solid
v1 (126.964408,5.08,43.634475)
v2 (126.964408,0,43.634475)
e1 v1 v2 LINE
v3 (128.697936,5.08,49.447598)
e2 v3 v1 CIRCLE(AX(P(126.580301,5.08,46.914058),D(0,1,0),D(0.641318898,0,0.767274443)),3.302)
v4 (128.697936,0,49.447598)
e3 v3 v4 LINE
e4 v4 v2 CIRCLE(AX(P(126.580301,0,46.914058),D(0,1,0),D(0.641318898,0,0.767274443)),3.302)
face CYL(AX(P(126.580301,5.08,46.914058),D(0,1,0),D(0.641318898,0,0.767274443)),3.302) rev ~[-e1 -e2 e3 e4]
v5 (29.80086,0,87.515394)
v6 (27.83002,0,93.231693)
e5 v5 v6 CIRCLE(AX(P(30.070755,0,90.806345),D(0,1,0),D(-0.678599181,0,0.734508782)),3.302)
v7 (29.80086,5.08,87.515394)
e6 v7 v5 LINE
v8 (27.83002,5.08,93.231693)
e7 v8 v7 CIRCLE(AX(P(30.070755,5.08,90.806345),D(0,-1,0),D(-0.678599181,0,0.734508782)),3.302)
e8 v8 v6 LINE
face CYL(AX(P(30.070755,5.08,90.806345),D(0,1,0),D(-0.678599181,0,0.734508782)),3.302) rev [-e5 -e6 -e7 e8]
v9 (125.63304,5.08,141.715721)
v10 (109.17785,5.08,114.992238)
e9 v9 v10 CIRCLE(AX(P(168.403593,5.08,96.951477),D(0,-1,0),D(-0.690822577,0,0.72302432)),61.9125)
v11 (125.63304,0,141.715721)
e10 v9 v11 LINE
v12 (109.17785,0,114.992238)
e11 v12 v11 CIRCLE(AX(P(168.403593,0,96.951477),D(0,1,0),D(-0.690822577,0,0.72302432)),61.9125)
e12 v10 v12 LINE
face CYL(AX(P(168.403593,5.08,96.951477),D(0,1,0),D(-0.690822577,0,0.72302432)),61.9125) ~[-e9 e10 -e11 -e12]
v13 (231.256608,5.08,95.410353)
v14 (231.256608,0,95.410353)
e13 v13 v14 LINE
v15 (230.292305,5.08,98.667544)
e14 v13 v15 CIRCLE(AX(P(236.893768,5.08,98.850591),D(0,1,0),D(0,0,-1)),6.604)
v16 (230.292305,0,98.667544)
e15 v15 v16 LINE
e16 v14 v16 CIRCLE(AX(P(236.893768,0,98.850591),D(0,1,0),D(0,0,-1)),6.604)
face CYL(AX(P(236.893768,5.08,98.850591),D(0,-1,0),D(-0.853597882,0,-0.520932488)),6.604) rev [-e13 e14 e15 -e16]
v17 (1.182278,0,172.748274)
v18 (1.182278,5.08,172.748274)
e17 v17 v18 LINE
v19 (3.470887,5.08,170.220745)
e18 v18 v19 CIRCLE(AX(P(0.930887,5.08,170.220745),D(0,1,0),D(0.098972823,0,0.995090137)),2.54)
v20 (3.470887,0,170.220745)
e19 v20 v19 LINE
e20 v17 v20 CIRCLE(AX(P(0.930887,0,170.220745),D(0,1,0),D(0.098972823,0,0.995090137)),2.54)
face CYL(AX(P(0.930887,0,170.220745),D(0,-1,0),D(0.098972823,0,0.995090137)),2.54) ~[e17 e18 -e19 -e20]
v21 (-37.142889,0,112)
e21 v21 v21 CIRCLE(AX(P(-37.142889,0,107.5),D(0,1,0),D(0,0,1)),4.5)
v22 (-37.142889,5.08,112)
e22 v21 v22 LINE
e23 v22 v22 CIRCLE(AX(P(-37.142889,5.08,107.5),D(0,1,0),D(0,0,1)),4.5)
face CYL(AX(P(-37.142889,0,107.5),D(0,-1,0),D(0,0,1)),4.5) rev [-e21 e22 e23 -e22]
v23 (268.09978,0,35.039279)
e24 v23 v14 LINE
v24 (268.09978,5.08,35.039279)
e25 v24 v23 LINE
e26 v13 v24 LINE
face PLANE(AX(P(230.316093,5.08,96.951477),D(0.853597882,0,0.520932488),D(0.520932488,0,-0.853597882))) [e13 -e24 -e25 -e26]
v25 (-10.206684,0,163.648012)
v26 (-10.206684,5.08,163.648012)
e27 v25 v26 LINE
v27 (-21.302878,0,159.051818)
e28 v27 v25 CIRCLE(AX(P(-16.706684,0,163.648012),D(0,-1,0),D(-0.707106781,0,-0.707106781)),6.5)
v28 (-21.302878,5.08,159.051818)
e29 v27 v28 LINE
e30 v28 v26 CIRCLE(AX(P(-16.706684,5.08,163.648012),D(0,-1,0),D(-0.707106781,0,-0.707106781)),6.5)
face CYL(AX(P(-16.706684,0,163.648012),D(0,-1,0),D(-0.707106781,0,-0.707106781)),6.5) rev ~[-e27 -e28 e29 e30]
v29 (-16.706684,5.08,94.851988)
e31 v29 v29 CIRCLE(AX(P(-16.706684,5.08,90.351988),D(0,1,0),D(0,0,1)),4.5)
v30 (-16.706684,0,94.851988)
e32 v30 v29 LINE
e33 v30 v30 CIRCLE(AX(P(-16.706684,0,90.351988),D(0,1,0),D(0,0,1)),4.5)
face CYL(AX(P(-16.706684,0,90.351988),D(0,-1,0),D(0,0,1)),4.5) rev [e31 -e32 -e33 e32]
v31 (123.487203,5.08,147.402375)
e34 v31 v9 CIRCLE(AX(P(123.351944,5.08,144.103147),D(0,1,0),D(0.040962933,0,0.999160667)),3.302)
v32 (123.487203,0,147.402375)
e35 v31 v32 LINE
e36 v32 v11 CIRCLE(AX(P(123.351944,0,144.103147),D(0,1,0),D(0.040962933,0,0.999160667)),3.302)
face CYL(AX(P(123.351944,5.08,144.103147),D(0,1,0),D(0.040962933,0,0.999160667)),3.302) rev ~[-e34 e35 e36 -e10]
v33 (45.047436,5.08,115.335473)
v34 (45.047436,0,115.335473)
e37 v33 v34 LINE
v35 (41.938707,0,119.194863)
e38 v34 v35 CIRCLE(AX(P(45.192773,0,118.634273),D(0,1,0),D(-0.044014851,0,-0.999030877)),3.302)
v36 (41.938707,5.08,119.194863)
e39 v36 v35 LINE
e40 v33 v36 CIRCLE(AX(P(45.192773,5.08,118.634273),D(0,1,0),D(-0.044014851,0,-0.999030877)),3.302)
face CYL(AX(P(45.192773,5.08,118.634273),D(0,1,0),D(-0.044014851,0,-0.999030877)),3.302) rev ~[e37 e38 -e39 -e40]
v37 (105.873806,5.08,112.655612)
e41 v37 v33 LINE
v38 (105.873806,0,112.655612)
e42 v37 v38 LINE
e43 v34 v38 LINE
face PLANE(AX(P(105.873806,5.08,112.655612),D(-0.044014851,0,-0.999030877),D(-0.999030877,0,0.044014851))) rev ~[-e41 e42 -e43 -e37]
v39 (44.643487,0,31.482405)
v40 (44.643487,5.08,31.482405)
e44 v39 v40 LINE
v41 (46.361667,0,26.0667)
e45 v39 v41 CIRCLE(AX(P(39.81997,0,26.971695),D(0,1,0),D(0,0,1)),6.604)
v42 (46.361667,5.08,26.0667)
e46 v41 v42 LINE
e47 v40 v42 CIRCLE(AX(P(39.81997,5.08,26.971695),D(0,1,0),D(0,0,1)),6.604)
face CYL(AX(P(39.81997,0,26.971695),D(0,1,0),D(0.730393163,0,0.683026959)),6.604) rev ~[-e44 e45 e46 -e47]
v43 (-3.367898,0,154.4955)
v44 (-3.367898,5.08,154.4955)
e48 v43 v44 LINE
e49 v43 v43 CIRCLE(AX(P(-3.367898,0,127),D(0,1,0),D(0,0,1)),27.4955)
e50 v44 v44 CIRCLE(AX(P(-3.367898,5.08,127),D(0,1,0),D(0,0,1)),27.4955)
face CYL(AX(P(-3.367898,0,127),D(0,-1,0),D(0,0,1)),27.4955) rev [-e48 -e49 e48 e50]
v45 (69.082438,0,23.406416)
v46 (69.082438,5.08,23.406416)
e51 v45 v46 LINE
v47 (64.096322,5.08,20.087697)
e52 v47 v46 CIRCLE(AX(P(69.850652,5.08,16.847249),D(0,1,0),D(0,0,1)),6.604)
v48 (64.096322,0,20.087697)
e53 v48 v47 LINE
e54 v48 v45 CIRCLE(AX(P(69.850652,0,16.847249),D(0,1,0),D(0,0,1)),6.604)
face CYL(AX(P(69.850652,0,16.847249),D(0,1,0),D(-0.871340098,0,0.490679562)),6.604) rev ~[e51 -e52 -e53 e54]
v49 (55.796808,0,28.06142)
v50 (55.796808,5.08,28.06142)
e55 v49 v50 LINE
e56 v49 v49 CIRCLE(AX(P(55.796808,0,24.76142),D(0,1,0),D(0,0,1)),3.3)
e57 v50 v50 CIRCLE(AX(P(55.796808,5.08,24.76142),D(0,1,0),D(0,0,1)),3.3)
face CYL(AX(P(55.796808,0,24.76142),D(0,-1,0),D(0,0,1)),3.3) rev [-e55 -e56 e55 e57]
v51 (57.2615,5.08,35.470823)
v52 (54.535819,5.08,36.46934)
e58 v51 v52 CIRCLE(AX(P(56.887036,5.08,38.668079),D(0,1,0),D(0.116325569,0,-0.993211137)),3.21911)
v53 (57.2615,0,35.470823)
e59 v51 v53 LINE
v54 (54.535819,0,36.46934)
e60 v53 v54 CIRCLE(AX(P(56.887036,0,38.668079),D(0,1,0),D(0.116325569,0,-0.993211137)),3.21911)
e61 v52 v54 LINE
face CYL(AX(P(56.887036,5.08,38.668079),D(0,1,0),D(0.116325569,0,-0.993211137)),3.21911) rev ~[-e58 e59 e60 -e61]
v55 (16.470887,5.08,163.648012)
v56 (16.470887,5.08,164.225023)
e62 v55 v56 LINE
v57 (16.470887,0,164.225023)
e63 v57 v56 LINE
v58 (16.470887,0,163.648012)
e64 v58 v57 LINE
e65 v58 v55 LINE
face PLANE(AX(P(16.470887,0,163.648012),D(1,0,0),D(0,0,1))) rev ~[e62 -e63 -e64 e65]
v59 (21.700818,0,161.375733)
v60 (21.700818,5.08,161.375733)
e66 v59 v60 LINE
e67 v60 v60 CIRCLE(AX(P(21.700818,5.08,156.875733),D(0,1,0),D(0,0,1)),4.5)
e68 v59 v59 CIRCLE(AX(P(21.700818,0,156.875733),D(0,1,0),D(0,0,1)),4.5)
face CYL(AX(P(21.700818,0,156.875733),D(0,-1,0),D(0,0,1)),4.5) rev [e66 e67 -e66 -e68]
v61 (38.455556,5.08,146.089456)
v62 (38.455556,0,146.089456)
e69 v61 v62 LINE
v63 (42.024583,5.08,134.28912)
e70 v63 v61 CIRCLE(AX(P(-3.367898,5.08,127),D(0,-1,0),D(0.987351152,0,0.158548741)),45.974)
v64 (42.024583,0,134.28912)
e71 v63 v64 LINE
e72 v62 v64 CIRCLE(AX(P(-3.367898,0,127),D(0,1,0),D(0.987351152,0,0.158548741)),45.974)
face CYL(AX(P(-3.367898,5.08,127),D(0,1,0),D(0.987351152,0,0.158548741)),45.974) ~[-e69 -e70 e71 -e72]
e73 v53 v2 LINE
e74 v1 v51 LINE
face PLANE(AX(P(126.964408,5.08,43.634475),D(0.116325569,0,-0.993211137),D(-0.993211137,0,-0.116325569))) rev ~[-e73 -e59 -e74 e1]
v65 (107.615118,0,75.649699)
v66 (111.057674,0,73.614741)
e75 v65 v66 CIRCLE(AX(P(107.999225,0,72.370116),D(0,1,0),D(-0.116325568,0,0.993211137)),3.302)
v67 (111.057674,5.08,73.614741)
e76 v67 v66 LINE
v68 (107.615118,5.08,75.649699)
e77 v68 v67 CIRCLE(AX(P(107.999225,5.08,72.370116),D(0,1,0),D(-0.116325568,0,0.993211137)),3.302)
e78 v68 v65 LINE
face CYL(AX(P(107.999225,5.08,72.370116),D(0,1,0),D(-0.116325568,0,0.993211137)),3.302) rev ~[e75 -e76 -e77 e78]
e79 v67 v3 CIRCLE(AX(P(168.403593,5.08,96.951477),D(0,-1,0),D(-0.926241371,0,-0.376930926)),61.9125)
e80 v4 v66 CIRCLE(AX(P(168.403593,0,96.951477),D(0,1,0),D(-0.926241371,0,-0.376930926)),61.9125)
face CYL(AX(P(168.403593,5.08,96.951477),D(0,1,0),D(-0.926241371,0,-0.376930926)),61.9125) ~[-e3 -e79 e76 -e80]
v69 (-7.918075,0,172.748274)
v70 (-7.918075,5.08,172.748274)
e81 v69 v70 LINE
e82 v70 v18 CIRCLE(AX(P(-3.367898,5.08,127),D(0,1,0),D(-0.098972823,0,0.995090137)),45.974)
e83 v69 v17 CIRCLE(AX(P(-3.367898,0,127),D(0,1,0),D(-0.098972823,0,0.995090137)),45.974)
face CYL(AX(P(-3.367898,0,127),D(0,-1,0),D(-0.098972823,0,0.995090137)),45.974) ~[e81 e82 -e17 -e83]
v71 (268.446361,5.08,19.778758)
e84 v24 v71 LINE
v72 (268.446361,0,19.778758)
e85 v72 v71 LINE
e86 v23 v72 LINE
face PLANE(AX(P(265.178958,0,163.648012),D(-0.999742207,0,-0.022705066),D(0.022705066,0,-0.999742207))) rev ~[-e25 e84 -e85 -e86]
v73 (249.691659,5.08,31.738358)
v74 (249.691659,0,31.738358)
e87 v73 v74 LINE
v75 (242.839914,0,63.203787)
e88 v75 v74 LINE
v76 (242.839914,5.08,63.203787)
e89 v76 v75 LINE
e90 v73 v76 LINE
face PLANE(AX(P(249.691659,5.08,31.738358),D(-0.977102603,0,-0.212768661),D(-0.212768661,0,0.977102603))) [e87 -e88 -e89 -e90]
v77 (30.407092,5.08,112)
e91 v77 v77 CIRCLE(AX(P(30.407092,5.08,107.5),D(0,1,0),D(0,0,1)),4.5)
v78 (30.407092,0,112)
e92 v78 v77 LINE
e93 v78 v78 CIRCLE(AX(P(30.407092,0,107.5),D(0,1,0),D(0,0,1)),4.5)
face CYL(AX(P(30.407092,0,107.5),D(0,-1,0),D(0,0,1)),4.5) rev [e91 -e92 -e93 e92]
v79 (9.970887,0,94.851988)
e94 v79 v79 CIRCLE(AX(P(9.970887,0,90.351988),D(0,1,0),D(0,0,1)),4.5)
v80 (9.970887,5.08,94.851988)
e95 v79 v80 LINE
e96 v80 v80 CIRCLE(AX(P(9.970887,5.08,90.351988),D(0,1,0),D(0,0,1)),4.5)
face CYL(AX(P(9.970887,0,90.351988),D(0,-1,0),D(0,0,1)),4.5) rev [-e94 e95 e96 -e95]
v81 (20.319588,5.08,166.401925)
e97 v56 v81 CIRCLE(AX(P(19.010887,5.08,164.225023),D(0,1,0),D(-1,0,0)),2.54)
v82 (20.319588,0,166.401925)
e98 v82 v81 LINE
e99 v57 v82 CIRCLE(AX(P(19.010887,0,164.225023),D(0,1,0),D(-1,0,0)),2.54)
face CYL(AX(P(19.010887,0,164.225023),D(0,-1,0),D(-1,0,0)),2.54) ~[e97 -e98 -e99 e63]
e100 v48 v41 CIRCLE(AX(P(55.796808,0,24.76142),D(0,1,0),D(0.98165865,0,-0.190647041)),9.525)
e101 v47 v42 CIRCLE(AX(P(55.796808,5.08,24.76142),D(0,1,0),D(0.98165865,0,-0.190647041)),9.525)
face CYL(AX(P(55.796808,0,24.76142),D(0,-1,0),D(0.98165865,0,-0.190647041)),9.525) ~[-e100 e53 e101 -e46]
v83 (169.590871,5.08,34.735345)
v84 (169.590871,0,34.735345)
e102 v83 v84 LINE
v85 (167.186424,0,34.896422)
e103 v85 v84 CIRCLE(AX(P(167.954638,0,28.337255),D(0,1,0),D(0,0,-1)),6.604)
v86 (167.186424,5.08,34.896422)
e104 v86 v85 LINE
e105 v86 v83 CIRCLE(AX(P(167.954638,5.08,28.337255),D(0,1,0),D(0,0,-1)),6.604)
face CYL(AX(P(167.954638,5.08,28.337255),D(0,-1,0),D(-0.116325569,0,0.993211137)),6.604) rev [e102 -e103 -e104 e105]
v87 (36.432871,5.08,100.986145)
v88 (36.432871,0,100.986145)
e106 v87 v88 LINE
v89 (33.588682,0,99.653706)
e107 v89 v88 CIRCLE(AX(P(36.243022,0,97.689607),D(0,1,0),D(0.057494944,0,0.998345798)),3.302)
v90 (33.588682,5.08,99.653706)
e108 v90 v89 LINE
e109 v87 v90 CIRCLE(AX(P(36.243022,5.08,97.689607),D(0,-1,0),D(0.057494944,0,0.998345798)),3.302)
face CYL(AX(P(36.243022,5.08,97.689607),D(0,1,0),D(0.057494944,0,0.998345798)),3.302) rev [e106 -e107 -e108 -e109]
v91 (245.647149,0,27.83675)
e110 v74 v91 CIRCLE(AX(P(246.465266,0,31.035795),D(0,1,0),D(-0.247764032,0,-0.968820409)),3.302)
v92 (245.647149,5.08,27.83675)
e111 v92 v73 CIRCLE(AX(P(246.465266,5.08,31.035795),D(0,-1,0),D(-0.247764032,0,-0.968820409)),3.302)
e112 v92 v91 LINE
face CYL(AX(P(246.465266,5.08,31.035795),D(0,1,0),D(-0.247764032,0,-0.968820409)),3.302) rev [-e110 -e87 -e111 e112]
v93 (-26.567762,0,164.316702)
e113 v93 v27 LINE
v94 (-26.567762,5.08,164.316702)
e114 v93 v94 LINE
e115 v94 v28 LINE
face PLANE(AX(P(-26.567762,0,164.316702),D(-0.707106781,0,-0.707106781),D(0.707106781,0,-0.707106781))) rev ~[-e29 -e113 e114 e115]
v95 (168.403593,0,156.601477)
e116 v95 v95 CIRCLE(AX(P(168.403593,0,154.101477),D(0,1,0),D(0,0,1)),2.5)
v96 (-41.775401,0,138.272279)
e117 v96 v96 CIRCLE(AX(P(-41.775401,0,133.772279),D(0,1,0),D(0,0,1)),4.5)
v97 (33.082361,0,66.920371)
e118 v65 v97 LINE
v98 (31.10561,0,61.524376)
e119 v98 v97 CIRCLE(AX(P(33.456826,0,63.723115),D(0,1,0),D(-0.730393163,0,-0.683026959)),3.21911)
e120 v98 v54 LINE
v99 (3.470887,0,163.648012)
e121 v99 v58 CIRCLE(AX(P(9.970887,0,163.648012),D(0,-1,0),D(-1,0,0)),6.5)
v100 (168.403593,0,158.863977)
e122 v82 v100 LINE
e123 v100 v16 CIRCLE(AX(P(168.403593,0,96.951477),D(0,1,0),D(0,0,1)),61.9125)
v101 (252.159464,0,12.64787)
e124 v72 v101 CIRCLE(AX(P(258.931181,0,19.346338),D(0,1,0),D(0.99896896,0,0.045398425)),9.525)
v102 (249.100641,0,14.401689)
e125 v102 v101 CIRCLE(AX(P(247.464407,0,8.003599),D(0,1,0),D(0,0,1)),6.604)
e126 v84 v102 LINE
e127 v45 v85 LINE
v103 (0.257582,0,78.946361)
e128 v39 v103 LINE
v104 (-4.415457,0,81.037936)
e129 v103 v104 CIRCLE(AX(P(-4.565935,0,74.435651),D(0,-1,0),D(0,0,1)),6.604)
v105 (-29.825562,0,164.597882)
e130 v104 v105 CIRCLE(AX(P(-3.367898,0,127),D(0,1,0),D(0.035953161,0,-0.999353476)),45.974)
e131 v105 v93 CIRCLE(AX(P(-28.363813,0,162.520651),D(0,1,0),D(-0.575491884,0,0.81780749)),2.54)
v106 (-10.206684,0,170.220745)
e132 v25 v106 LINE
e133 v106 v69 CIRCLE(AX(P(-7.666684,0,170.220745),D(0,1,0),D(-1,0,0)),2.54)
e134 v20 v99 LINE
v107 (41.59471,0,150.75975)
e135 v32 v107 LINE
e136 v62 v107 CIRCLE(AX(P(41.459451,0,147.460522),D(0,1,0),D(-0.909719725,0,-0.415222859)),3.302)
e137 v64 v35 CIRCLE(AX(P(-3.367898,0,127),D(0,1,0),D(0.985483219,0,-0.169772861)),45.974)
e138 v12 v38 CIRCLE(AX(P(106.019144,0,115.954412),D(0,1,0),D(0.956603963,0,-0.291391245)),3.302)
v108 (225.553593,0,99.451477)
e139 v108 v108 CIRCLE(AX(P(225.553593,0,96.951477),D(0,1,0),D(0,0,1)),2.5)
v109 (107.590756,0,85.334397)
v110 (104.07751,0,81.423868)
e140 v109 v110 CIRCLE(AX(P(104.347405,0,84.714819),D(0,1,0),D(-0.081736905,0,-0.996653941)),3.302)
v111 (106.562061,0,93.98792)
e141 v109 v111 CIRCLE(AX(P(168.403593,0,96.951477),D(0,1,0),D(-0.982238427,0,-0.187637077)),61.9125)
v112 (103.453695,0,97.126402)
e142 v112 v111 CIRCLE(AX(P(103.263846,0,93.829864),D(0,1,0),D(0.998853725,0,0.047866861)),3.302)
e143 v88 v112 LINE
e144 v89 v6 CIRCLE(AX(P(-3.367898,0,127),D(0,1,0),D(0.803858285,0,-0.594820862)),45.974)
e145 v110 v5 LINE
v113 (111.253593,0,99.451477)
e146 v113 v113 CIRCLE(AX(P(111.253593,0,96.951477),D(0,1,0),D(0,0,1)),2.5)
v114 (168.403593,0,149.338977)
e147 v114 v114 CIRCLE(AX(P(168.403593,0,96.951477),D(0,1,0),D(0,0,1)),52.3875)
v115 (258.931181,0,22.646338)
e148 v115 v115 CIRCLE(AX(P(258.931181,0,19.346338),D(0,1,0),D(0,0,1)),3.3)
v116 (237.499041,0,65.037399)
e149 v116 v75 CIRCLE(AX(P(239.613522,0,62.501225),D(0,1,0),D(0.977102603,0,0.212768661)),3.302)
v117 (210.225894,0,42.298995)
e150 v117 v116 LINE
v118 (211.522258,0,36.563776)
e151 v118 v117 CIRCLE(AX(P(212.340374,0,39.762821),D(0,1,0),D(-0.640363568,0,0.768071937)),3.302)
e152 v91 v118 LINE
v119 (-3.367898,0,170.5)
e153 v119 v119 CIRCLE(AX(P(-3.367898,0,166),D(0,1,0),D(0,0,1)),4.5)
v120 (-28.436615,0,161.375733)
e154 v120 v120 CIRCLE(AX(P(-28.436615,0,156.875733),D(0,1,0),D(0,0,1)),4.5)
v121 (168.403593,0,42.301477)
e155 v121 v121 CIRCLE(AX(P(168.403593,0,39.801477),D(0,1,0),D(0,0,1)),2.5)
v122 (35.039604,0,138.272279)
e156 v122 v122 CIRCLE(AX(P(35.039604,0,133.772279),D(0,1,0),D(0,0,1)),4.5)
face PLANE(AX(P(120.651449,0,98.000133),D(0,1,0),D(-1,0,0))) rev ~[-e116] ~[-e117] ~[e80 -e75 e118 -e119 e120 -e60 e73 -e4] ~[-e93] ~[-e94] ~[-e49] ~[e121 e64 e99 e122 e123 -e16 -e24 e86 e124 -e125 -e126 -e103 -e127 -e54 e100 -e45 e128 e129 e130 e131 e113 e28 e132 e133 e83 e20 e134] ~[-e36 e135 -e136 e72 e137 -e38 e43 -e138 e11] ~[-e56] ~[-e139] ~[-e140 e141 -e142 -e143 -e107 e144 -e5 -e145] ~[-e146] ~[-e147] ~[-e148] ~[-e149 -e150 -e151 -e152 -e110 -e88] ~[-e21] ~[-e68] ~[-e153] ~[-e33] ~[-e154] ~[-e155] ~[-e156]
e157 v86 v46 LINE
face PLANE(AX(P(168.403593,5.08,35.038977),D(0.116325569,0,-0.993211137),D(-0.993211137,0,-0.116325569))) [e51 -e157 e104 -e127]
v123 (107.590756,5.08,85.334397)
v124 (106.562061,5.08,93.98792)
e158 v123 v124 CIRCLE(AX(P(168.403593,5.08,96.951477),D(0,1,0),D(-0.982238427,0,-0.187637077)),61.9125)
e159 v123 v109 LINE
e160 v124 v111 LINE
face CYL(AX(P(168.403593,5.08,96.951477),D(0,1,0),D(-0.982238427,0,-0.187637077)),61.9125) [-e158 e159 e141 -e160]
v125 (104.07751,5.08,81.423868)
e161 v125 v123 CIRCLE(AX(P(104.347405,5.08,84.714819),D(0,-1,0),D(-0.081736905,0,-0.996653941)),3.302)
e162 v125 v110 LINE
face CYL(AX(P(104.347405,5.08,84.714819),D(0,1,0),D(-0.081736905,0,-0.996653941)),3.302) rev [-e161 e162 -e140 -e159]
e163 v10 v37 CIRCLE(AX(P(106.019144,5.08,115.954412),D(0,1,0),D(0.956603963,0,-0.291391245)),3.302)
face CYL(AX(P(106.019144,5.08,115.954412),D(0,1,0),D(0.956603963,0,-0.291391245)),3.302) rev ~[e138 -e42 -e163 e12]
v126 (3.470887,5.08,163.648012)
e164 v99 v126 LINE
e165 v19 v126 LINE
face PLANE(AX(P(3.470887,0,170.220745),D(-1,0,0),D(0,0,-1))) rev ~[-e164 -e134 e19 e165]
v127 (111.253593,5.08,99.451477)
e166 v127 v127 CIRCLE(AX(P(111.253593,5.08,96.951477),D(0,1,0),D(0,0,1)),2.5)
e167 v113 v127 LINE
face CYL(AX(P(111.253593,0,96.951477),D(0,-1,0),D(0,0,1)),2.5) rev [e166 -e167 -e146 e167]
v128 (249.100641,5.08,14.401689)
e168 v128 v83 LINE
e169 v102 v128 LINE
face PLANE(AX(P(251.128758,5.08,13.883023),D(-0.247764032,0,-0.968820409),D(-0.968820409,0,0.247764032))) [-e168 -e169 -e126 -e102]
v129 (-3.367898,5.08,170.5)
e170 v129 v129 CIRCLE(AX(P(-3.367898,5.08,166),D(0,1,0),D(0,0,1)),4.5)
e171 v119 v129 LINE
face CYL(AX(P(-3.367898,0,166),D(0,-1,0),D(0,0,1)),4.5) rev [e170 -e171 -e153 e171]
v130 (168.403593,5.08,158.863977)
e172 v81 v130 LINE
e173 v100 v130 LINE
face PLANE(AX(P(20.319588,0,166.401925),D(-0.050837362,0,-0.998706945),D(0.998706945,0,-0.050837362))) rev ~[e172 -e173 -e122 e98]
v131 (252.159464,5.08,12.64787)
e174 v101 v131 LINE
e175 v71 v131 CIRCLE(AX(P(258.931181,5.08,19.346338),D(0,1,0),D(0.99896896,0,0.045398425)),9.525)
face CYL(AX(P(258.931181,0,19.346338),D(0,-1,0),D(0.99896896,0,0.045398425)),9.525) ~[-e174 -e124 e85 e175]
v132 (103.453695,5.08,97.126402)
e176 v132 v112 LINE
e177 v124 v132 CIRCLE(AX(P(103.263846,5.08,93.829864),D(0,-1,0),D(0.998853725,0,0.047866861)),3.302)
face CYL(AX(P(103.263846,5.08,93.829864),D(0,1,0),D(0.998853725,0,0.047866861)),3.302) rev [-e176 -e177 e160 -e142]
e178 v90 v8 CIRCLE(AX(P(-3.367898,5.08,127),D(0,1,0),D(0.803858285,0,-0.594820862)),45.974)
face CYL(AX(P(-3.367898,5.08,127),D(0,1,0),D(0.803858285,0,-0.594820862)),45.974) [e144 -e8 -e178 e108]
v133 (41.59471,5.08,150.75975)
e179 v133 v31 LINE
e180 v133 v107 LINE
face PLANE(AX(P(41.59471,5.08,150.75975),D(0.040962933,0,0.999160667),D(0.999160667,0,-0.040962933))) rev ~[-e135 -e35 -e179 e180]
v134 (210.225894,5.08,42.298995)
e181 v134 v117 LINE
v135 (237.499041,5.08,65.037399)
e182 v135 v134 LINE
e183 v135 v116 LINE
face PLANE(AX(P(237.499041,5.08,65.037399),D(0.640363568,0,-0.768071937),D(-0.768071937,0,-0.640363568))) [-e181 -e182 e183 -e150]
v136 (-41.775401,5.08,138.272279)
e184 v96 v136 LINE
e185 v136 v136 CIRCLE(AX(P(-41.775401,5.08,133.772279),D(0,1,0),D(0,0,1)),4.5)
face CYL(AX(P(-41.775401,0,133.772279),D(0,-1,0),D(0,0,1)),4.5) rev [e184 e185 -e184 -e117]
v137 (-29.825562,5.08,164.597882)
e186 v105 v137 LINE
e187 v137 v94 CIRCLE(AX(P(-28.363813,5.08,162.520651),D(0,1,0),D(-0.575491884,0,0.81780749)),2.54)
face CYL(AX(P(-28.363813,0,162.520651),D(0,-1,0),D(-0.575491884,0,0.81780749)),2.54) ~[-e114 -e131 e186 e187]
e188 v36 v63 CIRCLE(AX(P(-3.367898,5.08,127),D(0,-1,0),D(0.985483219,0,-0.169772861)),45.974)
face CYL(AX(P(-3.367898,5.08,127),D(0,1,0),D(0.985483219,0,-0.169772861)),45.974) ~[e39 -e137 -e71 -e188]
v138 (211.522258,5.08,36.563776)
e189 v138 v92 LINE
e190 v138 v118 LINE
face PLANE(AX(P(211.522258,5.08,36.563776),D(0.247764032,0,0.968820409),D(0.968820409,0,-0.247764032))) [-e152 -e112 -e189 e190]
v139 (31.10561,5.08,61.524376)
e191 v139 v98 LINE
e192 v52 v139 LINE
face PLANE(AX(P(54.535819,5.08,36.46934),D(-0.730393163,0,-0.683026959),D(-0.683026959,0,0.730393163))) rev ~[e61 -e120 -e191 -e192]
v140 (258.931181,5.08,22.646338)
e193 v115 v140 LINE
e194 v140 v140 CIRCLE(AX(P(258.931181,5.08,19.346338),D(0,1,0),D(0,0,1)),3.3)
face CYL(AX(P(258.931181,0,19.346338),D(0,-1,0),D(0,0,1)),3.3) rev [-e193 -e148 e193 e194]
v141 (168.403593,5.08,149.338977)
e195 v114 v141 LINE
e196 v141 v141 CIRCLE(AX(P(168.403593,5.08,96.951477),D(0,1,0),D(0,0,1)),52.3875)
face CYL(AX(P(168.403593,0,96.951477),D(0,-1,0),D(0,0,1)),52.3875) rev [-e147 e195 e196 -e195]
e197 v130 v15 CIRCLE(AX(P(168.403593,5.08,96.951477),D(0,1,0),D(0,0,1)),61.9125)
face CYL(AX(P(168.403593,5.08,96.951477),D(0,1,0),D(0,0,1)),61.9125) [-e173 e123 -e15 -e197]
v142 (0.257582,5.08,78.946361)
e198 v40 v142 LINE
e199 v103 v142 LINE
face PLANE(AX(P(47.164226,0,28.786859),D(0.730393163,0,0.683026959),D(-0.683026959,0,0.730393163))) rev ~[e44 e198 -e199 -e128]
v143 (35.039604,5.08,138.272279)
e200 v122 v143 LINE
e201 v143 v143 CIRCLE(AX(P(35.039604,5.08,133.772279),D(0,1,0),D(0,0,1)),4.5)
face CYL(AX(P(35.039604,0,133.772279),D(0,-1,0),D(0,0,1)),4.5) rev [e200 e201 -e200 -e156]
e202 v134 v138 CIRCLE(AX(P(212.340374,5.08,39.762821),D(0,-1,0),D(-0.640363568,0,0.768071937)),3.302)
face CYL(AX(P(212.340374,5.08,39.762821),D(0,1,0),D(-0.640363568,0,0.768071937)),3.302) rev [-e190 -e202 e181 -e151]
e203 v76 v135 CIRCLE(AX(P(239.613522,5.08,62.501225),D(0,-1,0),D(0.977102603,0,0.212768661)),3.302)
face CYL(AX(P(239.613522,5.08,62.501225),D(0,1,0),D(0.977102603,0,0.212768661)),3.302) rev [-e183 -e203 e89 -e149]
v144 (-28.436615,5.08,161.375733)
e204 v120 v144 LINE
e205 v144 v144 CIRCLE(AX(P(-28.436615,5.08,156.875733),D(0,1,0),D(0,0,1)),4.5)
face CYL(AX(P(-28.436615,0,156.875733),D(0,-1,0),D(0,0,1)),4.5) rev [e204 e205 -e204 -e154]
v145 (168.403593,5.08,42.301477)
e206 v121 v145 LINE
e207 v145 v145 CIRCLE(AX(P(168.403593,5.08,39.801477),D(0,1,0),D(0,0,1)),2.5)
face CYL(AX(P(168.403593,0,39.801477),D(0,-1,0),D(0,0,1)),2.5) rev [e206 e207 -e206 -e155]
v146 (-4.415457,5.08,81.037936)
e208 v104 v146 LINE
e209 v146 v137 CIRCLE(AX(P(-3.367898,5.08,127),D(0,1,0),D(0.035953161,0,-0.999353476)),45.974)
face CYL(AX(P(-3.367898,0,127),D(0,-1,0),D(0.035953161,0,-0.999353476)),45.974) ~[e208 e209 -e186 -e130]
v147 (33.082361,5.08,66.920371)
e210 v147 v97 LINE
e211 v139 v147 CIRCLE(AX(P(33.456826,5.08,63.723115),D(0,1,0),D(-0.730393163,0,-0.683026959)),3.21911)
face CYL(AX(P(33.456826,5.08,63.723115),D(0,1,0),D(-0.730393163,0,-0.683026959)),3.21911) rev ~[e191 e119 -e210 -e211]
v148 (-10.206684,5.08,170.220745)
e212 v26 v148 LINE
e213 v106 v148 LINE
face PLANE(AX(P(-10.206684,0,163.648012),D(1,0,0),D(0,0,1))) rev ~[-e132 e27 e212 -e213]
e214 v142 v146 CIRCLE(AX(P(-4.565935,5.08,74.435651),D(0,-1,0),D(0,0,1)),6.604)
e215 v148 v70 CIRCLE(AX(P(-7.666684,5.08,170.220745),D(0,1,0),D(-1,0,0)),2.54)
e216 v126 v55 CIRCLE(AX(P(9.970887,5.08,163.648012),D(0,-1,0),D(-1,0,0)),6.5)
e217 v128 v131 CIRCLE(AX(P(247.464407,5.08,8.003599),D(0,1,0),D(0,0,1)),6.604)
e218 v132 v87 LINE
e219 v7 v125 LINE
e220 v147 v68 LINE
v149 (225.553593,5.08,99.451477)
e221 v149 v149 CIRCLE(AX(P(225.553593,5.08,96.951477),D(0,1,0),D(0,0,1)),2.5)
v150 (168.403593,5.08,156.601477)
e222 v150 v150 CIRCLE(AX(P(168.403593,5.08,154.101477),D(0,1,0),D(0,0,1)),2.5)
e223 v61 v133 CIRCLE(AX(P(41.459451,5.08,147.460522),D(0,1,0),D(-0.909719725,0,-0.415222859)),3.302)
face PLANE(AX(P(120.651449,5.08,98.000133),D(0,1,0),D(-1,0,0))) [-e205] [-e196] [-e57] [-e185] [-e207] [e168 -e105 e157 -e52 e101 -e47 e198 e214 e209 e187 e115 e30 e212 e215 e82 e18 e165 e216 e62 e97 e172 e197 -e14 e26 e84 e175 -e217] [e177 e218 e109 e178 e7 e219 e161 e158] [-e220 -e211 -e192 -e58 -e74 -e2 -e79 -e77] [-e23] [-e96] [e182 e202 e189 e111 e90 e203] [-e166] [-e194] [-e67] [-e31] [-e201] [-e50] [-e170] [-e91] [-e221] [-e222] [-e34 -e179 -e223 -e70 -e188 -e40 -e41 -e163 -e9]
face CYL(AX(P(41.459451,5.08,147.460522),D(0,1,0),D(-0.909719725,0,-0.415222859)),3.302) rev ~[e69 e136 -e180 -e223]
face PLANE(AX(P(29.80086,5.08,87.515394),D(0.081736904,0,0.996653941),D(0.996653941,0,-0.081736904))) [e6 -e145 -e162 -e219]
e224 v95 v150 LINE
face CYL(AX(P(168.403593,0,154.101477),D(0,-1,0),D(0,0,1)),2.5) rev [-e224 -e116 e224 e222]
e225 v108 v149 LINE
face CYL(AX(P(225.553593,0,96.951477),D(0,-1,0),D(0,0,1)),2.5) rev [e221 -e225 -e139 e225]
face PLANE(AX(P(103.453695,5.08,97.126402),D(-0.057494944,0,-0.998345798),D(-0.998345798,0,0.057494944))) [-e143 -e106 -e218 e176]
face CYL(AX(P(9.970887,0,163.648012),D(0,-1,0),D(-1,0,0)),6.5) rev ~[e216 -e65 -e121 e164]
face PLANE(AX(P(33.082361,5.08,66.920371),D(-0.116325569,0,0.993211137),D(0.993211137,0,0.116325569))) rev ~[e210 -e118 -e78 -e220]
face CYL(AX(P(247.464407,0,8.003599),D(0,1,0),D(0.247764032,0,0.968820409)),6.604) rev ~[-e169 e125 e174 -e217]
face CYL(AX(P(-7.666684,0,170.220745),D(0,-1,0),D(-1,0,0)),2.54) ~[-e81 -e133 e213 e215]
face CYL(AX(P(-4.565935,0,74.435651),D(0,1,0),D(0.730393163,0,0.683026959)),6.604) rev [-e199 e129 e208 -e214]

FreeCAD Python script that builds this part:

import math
import FreeCAD as App
import Part
import Sketcher
Q = App.Units.Quantity


def edges_at(feature, points):
    """Names of the edges that pass closest to the given points."""
    edges = feature.Shape.Edges
    near = lambda p: min(range(len(edges)), key=lambda i: edges[i].distToShape(Part.Vertex(*p))[0])
    return sorted({f"Edge{near(p) + 1}" for p in points})


def add_polygon(sketch, points):
    """Adds a closed chain of lines whose ends are joined by coincident constraints."""
    first, n = sketch.GeometryCount, len(points)
    for a, b in zip(points, points[1:] + points[:1]):
        sketch.addGeometry(Part.LineSegment(App.Vector(*a, 0), App.Vector(*b, 0)), False)
    for i in range(n):
        sketch.addConstraint(Sketcher.Constraint("Coincident", first + i, 2, first + (i + 1) % n, 1))

doc = App.newDocument("Part")
body = doc.addObject("PartDesign::Body", "Body")

sketch1 = body.newObject("Sketcher::SketchObject", "Sketch")
sketch1.AttachmentSupport = (doc.getObject("XZ_Plane"), [""])
sketch1.MapMode = "FlatFace"
sketch1.addGeometry([
    Part.LineSegment(App.Vector(47.164226, 28.786859, 0), App.Vector(-1.714988, 81.055723, 0)),
    Part.ArcOfCircle(Part.Circle(App.Vector(-3.367898, 127, 0), App.Vector(0, 0, 1), 45.974), math.radians(125.134086), math.radians(272.060408)),
    Part.ArcOfCircle(Part.Circle(App.Vector(-28.363813, 162.520651, 0), App.Vector(0, 0, 1), 2.54), math.radians(45), math.radians(125.134086)),
    Part.LineSegment(App.Vector(-26.567762, 164.316702, 0), App.Vector(-21.302878, 159.051818, 0)),
    Part.ArcOfCircle(Part.Circle(App.Vector(-16.706684, 163.648012, 0), App.Vector(0, 0, 1), 6.5), math.radians(-135), math.radians(0)),
    Part.LineSegment(App.Vector(-10.206684, 163.648012, 0), App.Vector(-10.206684, 170.220745, 0)),
    Part.ArcOfCircle(Part.Circle(App.Vector(-7.666684, 170.220745, 0), App.Vector(0, 0, 1), 2.54), math.radians(95.680024), math.radians(180)),
    Part.ArcOfCircle(Part.Circle(App.Vector(-3.367898, 127, 0), App.Vector(0, 0, 1), 45.974), math.radians(84.319976), math.radians(95.680024)),
    Part.ArcOfCircle(Part.Circle(App.Vector(0.930887, 170.220745, 0), App.Vector(0, 0, 1), 2.54), math.radians(0), math.radians(84.319976)),
    Part.LineSegment(App.Vector(3.470887, 170.220745, 0), App.Vector(3.470887, 163.648012, 0)),
    Part.ArcOfCircle(Part.Circle(App.Vector(9.970887, 163.648012, 0), App.Vector(0, 0, 1), 6.5), math.radians(180), math.radians(360)),
    Part.LineSegment(App.Vector(16.470887, 163.648012, 0), App.Vector(16.470887, 164.225023, 0)),
    Part.ArcOfCircle(Part.Circle(App.Vector(19.010887, 164.225023, 0), App.Vector(0, 0, 1), 2.54), math.radians(58.98673), math.radians(180)),
    Part.LineSegment(App.Vector(20.319588, 166.401925, 0), App.Vector(168.403593, 158.863977, 0)),
    Part.LineSegment(App.Vector(168.403593, 158.863977, 0), App.Vector(265.178958, 163.648012, 0)),
    Part.LineSegment(App.Vector(265.178958, 163.648012, 0), App.Vector(268.446361, 19.778758, 0)),
    Part.ArcOfCircle(Part.Circle(App.Vector(258.931181, 19.346338, 0), App.Vector(0, 0, 1), 9.525), math.radians(-145), math.radians(2.602032)),
    Part.LineSegment(App.Vector(251.128758, 13.883023, 0), App.Vector(65.147106, 22.945507, 0)),
    Part.ArcOfCircle(Part.Circle(App.Vector(55.796808, 24.76142, 0), App.Vector(0, 0, 1), 9.525), math.radians(155), math.radians(349.009453)),
    Part.Circle(App.Vector(258.931181, 19.346338, 0), App.Vector(0, 0, 1), 3.3),
    Part.Circle(App.Vector(168.403593, 39.801477, 0), App.Vector(0, 0, 1), 2.5),
    Part.Circle(App.Vector(55.796808, 24.76142, 0), App.Vector(0, 0, 1), 3.3),
    Part.Circle(App.Vector(9.970887, 90.351988, 0), App.Vector(0, 0, 1), 4.5),
    Part.Circle(App.Vector(-16.706684, 90.351988, 0), App.Vector(0, 0, 1), 4.5),
    Part.Circle(App.Vector(225.553593, 96.951477, 0), App.Vector(0, 0, 1), 2.5),
    Part.Circle(App.Vector(168.403593, 96.951477, 0), App.Vector(0, 0, 1), 52.3875),
    Part.Circle(App.Vector(111.253593, 96.951477, 0), App.Vector(0, 0, 1), 2.5),
    Part.Circle(App.Vector(168.403593, 154.101477, 0), App.Vector(0, 0, 1), 2.5),
    Part.Circle(App.Vector(30.407092, 107.5, 0), App.Vector(0, 0, 1), 4.5),
    Part.Circle(App.Vector(-37.142889, 107.5, 0), App.Vector(0, 0, 1), 4.5),
    Part.Circle(App.Vector(-3.367898, 127, 0), App.Vector(0, 0, 1), 27.4955),
    Part.Circle(App.Vector(35.039604, 133.772279, 0), App.Vector(0, 0, 1), 4.5),
    Part.Circle(App.Vector(-41.775401, 133.772279, 0), App.Vector(0, 0, 1), 4.5),
    Part.Circle(App.Vector(21.700818, 156.875733, 0), App.Vector(0, 0, 1), 4.5),
    Part.Circle(App.Vector(-3.367898, 166, 0), App.Vector(0, 0, 1), 4.5),
    Part.Circle(App.Vector(-28.436615, 156.875733, 0), App.Vector(0, 0, 1), 4.5),
], False)
sketch1.addConstraint([
    Sketcher.Constraint("Coincident", 0, 2, 1, 2),
    Sketcher.Constraint("Coincident", 1, 1, 2, 2),
    Sketcher.Constraint("Coincident", 2, 1, 3, 1),
    Sketcher.Constraint("Coincident", 3, 2, 4, 1),
    Sketcher.Constraint("Coincident", 4, 2, 5, 1),
    Sketcher.Constraint("Coincident", 5, 2, 6, 2),
    Sketcher.Constraint("Coincident", 6, 1, 7, 2),
    Sketcher.Constraint("Coincident", 7, 1, 8, 2),
    Sketcher.Constraint("Coincident", 8, 1, 9, 1),
    Sketcher.Constraint("Coincident", 9, 2, 10, 1),
    Sketcher.Constraint("Coincident", 10, 2, 11, 1),
    Sketcher.Constraint("Coincident", 11, 2, 12, 2),
    Sketcher.Constraint("Coincident", 12, 1, 13, 1),
    Sketcher.Constraint("Coincident", 13, 2, 14, 1),
    Sketcher.Constraint("Coincident", 14, 2, 15, 1),
    Sketcher.Constraint("Coincident", 15, 2, 16, 2),
    Sketcher.Constraint("Coincident", 16, 1, 17, 1),
    Sketcher.Constraint("Coincident", 17, 2, 18, 2),
    Sketcher.Constraint("Coincident", 18, 1, 0, 1),
    Sketcher.Constraint("Vertical", 5),
    Sketcher.Constraint("Vertical", 9),
    Sketcher.Constraint("Vertical", 11),
    Sketcher.Constraint("Coincident", 7, 3, 1, 3),
    Sketcher.Constraint("Coincident", 19, 3, 16, 3),
    Sketcher.Constraint("Coincident", 21, 3, 18, 3),
    Sketcher.Constraint("Coincident", 30, 3, 1, 3),
    Sketcher.Constraint("Radius", 2, Q("0.1 in")),
    Sketcher.Constraint("Radius", 6, Q("0.1 in")),
    Sketcher.Constraint("Radius", 8, Q("0.1 in")),
    Sketcher.Constraint("Radius", 12, Q("0.1 in")),
    Sketcher.Constraint("Radius", 1, Q("1.81 in")),
    Sketcher.Constraint("Radius", 7, Q("1.81 in")),
    Sketcher.Constraint("Diameter", 25, Q("4.125 in")),
    Sketcher.Constraint("Diameter", 30, Q("2.165 in")),
    Sketcher.Constraint("DistanceY", -1, 1, 1, 3, Q("5 in")),
    Sketcher.Constraint("Radius", 16, Q("0.375 in")),
    Sketcher.Constraint("Radius", 18, Q("0.375 in")),
    Sketcher.Constraint("DistanceY", 20, 3, 27, 3, Q("4.5 in")),
    Sketcher.Constraint("Diameter", 19, 6.6),
    Sketcher.Constraint("Diameter", 20, 5.0),
    Sketcher.Constraint("Diameter", 21, 6.6),
    Sketcher.Constraint("Diameter", 22, 9.0),
    Sketcher.Constraint("Diameter", 23, 9.0),
    Sketcher.Constraint("Diameter", 24, 5.0),
    Sketcher.Constraint("Diameter", 26, 5.0),
    Sketcher.Constraint("Diameter", 27, 5.0),
    Sketcher.Constraint("Diameter", 28, 9.0),
    Sketcher.Constraint("Diameter", 29, 9.0),
    Sketcher.Constraint("Diameter", 31, 9.0),
    Sketcher.Constraint("Diameter", 32, 9.0),
    Sketcher.Constraint("Diameter", 33, 9.0),
    Sketcher.Constraint("Diameter", 34, 9.0),
    Sketcher.Constraint("Diameter", 35, 9.0),
    Sketcher.Constraint("Radius", 4, 6.5),
    Sketcher.Constraint("Radius", 10, 6.5),
    Sketcher.Constraint("DistanceX", 20, 3, 24, 3, Q("2.25 in")),
    Sketcher.Constraint("DistanceY", 20, 3, 24, 3, Q("2.25 in")),
    Sketcher.Constraint("DistanceX", 25, 3, 24, 3, Q("2.25 in")),
    Sketcher.Constraint("DistanceY", 20, 3, 25, 3, Q("2.25 in")),
    Sketcher.Constraint("DistanceX", 26, 3, 25, 3, Q("2.25 in")),
    Sketcher.Constraint("DistanceY", 20, 3, 26, 3, Q("2.25 in")),
    Sketcher.Constraint("DistanceX", 27, 3, 24, 3, Q("2.25 in")),
    Sketcher.Constraint("DistanceX", 13, 2, 24, 3, Q("2.25 in")),
    Sketcher.Constraint("DistanceY", 27, 3, 13, 2, Q("0.1875 in")),
    Sketcher.Constraint("Distance", 17, Q("7.3307999 in")),
    Sketcher.Constraint("DistanceY", 11, 1, 11, 2, 0.57701),
    Sketcher.Constraint("DistanceX", 1, 3, -1, 1, 3.367898),
    Sketcher.Constraint("DistanceY", -1, 1, 28, 3, 107.5),
    Sketcher.Constraint("DistanceY", -1, 1, 29, 3, 107.5),
    Sketcher.Constraint("DistanceX", 32, 3, -1, 1, 41.775401),
    Sketcher.Constraint("DistanceX", 34, 3, -1, 1, 3.367898),
    Sketcher.Constraint("DistanceY", -1, 1, 34, 3, 166.0),
    Sketcher.Constraint("DistanceY", -1, 1, 2, 1, 164.316702),
    Sketcher.Constraint("DistanceX", 2, 3, 8, 3, 29.2947),
    Sketcher.Constraint("DistanceX", 22, 3, 12, 3, 9.04),
    Sketcher.Constraint("DistanceX", 29, 3, 0, 2, 35.427901),
    Sketcher.Constraint("DistanceX", 1, 1, 2, 1, 3.257801),
    Sketcher.Constraint("DistanceX", 12, 3, 12, 1, 1.308701),
    Sketcher.Constraint("DistanceY", 11, 2, 12, 1, 2.176902),
    Sketcher.Constraint("DistanceX", 18, 3, 17, 2, 9.350299),
    Sketcher.Constraint("Distance", 0, 71.562642),
    Sketcher.Constraint("Distance", 3, 7.44567),
    Sketcher.Constraint("Distance", 14, 96.893541),
    Sketcher.Constraint("Distance", 15, 143.906352),
    Sketcher.Constraint("DistanceY", 5, 1, 5, 2, 6.572733),
    Sketcher.Constraint("DistanceY", 9, 2, 9, 1, 6.572733),
    Sketcher.Constraint("DistanceY", -1, 1, 2, 3, 162.520651),
    Sketcher.Constraint("DistanceX", -1, 1, 16, 3, 258.931181),
    Sketcher.Constraint("DistanceY", -1, 1, 16, 3, 19.346338),
    Sketcher.Constraint("DistanceY", -1, 1, 18, 3, 24.76142),
    Sketcher.Constraint("DistanceX", 29, 3, -1, 1, 37.142889),
    Sketcher.Constraint("DistanceY", -1, 1, 31, 3, 133.772279),
    Sketcher.Constraint("DistanceY", -1, 1, 32, 3, 133.772279),
    Sketcher.Constraint("DistanceX", -1, 1, 33, 3, 21.700818),
    Sketcher.Constraint("DistanceX", 3, 2, -1, 1, 21.302878),
    Sketcher.Constraint("DistanceX", -1, 1, 7, 1, 1.182278),
    Sketcher.Constraint("DistanceX", -1, 1, 15, 2, 268.446361),
    Sketcher.Constraint("DistanceX", -1, 1, 16, 1, 251.128758),
    Sketcher.Constraint("DistanceX", 2, 3, 4, 3, 11.657129),
    Sketcher.Constraint("DistanceY", 2, 3, 10, 3, 1.127362),
    Sketcher.Constraint("DistanceY", 10, 3, 12, 3, 0.57701),
    Sketcher.Constraint("DistanceX", 20, 3, 16, 3, 90.527589),
    Sketcher.Constraint("DistanceY", 16, 3, 20, 3, 20.455139),
    Sketcher.Constraint("DistanceX", 23, 3, 22, 3, 26.677571),
    Sketcher.Constraint("DistanceY", 22, 3, 26, 3, 6.59949),
    Sketcher.Constraint("DistanceX", 7, 3, 28, 3, 33.774991),
    Sketcher.Constraint("DistanceX", 28, 3, 31, 3, 4.632512),
    Sketcher.Constraint("DistanceY", 33, 3, 12, 3, 7.349289),
    Sketcher.Constraint("DistanceX", 35, 3, 4, 3, 11.729931),
    Sketcher.Constraint("DistanceY", 35, 3, 4, 3, 6.772279),
    Sketcher.Constraint("DistanceX", 6, 1, 6, 3, 0.251391),
    Sketcher.Constraint("DistanceY", 5, 2, 6, 1, 2.527529),
    Sketcher.Constraint("DistanceY", 8, 1, 7, 1, 2.527529),
    Sketcher.Constraint("DistanceY", -1, 1, 23, 3, 90.351988),
])
pad1 = body.newObject("PartDesign::Pad", "Pad")
pad1.Profile = sketch1
pad1.Length = Q("0.2 in")
pad1.Reversed = True

sketch2 = body.newObject("Sketcher::SketchObject", "Sketch001")
sketch2.AttachmentSupport = (doc.getObject("XZ_Plane"), [""])
sketch2.MapMode = "FlatFace"
sketch2.AttachmentOffset = App.Placement(App.Vector(0, 0, -0.2 * 25.4), App.Rotation())
sketch2.addGeometry([
    Part.LineSegment(App.Vector(268, 35, 0), App.Vector(230, 97, 0)),
    Part.ArcOfCircle(Part.Circle(App.Vector(168, 97, 0), App.Vector(0, 0, 1), 62), math.radians(0), math.radians(90)),
    Part.LineSegment(App.Vector(168, 159, 0), App.Vector(265, 164, 0)),
    Part.LineSegment(App.Vector(265, 164, 0), App.Vector(268, 35, 0)),
], False)
sketch2.addConstraint([
    Sketcher.Constraint("Coincident", 0, 2, 1, 1),
    Sketcher.Constraint("Coincident", 1, 2, 2, 1),
    Sketcher.Constraint("Coincident", 2, 2, 3, 1),
    Sketcher.Constraint("Coincident", 3, 2, 0, 1),
    Sketcher.Constraint("Horizontal", 1, 3, 0, 2),
    Sketcher.Constraint("Radius", 1, Q("2.4375 in")),
    Sketcher.Constraint("DistanceX", 1, 2, 0, 2, Q("2.4375 in")),
    Sketcher.Constraint("DistanceY", 3, 2, 0, 2, 61.912199),
    Sketcher.Constraint("Distance", 0, 72.530872),
    Sketcher.Constraint("Distance", 2, 96.893541),
    Sketcher.Constraint("DistanceX", -1, 1, 3, 2, 268.09978),
    Sketcher.Constraint("DistanceY", -1, 1, 3, 2, 35.039279),
    Sketcher.Constraint("Distance", 3, 128.641897),
])
pocket1 = body.newObject("PartDesign::Pocket", "Pocket")
pocket1.Profile = sketch2
pocket1.Type = "UpToFirst"
pocket1.Reversed = True

sketch3 = body.newObject("Sketcher::SketchObject", "Sketch002")
sketch3.AttachmentSupport = (doc.getObject("XZ_Plane"), [""])
sketch3.MapMode = "FlatFace"
sketch3.AttachmentOffset = App.Placement(App.Vector(0, 0, -0.2 * 25.4), App.Rotation())
add_polygon(sketch3, [(168.403593, 35.038977), (251.128758, 13.883023), (65.147106, 22.945507)])
sketch3.addConstraint([
    Sketcher.Constraint("Distance", 1, Q("7.3307999 in")),
    Sketcher.Constraint("DistanceX", -1, 1, 0, 2, 251.128758),
    Sketcher.Constraint("DistanceX", 1, 2, 0, 2, 185.981652),
    Sketcher.Constraint("DistanceY", 1, 2, 2, 2, 12.09347),
    Sketcher.Constraint("Distance", 0, 85.387513),
    Sketcher.Constraint("DistanceY", -1, 1, 0, 2, 13.883023),
])
pocket2 = body.newObject("PartDesign::Pocket", "Pocket001")
pocket2.Profile = sketch3
pocket2.Type = "UpToFirst"
pocket2.Reversed = True

sketch4 = body.newObject("Sketcher::SketchObject", "Sketch003")
sketch4.AttachmentSupport = (doc.getObject("XZ_Plane"), [""])
sketch4.MapMode = "FlatFace"
sketch4.AttachmentOffset = App.Placement(App.Vector(0, 0, -0.2 * 25.4), App.Rotation())
sketch4.addGeometry([
    Part.LineSegment(App.Vector(127, 43.6, 0), App.Vector(57.3, 35.5, 0)),
    Part.ArcOfCircle(Part.Circle(App.Vector(56.9, 38.7, 0), App.Vector(0, 0, 1), 3.2), math.radians(-137), math.radians(-83)),
    Part.LineSegment(App.Vector(54.5, 36.5, 0), App.Vector(31.1, 61.5, 0)),
    Part.ArcOfCircle(Part.Circle(App.Vector(33.5, 63.7, 0), App.Vector(0, 0, 1), 3.2), math.radians(97), math.radians(223)),
    Part.LineSegment(App.Vector(33.1, 66.9, 0), App.Vector(107.6, 75.6, 0)),
    Part.ArcOfCircle(Part.Circle(App.Vector(108, 72.4, 0), App.Vector(0, 0, 1), 3.3), math.radians(22), math.radians(97)),
    Part.ArcOfCircle(Part.Circle(App.Vector(168.4, 97, 0), App.Vector(0, 0, 1), 61.9), math.radians(-158), math.radians(-130)),
    Part.ArcOfCircle(Part.Circle(App.Vector(126.6, 46.9, 0), App.Vector(0, 0, 1), 3.3), math.radians(-83), math.radians(50)),
], False)
sketch4.addConstraint([
    Sketcher.Constraint("Tangent", 0, 2, 1, 2),
    Sketcher.Constraint("Tangent", 1, 1, 2, 1),
    Sketcher.Constraint("Tangent", 2, 2, 3, 2),
    Sketcher.Constraint("Tangent", 3, 1, 4, 1),
    Sketcher.Constraint("Tangent", 4, 2, 5, 2),
    Sketcher.Constraint("Tangent", 5, 1, 6, 1),
    Sketcher.Constraint("Tangent", 6, 2, 7, 2),
    Sketcher.Constraint("Tangent", 7, 1, 0, 1),
    Sketcher.Constraint("Equal", 1, 3),
    Sketcher.Constraint("Equal", 5, 7),
    Sketcher.Constraint("Parallel", 0, 4),
    Sketcher.Constraint("Radius", 5, Q("0.13 in")),
    Sketcher.Constraint("Radius", 6, Q("2.4375 in")),
    Sketcher.Constraint("Radius", 1, 3.21911),
    Sketcher.Constraint("DistanceX", -1, 1, 7, 3, 126.580301),
    Sketcher.Constraint("DistanceX", -1, 1, 0, 2, 57.2615),
    Sketcher.Constraint("DistanceY", -1, 1, 4, 2, 75.649699),
    Sketcher.Constraint("DistanceY", -1, 1, 6, 2, 49.447598),
    Sketcher.Constraint("DistanceX", 3, 3, 5, 3, 74.542399),
    Sketcher.Constraint("DistanceY", 3, 3, 5, 3, 8.647001),
    Sketcher.Constraint("DistanceY", 1, 3, 6, 3, 58.283398),
])
pocket3 = body.newObject("PartDesign::Pocket", "Pocket002")
pocket3.Profile = sketch4
pocket3.Type = "UpToFirst"
pocket3.Reversed = True

sketch5 = body.newObject("Sketcher::SketchObject", "Sketch004")
sketch5.AttachmentSupport = (doc.getObject("XZ_Plane"), [""])
sketch5.MapMode = "FlatFace"
sketch5.AttachmentOffset = App.Placement(App.Vector(0, 0, -0.2 * 25.4), App.Rotation())
sketch5.addGeometry([
    Part.LineSegment(App.Vector(242.8, 63.2, 0), App.Vector(249.7, 31.7, 0)),
    Part.ArcOfCircle(Part.Circle(App.Vector(246.5, 31, 0), App.Vector(0, 0, 1), 3.3), math.radians(-104), math.radians(12)),
    Part.LineSegment(App.Vector(245.6, 27.8, 0), App.Vector(211.5, 36.6, 0)),
    Part.ArcOfCircle(Part.Circle(App.Vector(212.3, 39.8, 0), App.Vector(0, 0, 1), 3.3), math.radians(130), math.radians(256)),
    Part.LineSegment(App.Vector(210.2, 42.3, 0), App.Vector(237.5, 65, 0)),
    Part.ArcOfCircle(Part.Circle(App.Vector(239.6, 62.5, 0), App.Vector(0, 0, 1), 3.3), math.radians(12), math.radians(130)),
], False)
sketch5.addConstraint([
    Sketcher.Constraint("Tangent", 0, 2, 1, 2),
    Sketcher.Constraint("Tangent", 1, 1, 2, 1),
    Sketcher.Constraint("Tangent", 2, 2, 3, 2),
    Sketcher.Constraint("Tangent", 3, 1, 4, 1),
    Sketcher.Constraint("Tangent", 4, 2, 5, 2),
    Sketcher.Constraint("Tangent", 5, 1, 0, 1),
    Sketcher.Constraint("Equal", 1, 3),
    Sketcher.Constraint("Equal", 3, 5),
    Sketcher.Constraint("Radius", 1, Q("0.13 in")),
    Sketcher.Constraint("DistanceY", -1, 1, 4, 2, 65.037399),
    Sketcher.Constraint("DistanceX", 2, 2, 0, 2, 38.169401),
    Sketcher.Constraint("DistanceY", 1, 3, 3, 1, 11.263199),
    Sketcher.Constraint("Distance", 0, 32.20279),
    Sketcher.Constraint("DistanceY", -1, 1, 3, 3, 39.762821),
    Sketcher.Constraint("DistanceX", -1, 1, 5, 3, 239.613522),
])
pocket4 = body.newObject("PartDesign::Pocket", "Pocket003")
pocket4.Profile = sketch5
pocket4.Type = "UpToFirst"
pocket4.Reversed = True

sketch6 = body.newObject("Sketcher::SketchObject", "Sketch005")
sketch6.AttachmentSupport = (doc.getObject("XZ_Plane"), [""])
sketch6.MapMode = "FlatFace"
sketch6.AttachmentOffset = App.Placement(App.Vector(0, 0, -0.2 * 25.4), App.Rotation())
sketch6.addGeometry([
    Part.LineSegment(App.Vector(36.4, 101, 0), App.Vector(103.5, 97.1, 0)),
    Part.ArcOfCircle(Part.Circle(App.Vector(103.3, 93.8, 0), App.Vector(0, 0, 1), 3.3), math.radians(3), math.radians(87)),
    Part.ArcOfCircle(Part.Circle(App.Vector(168.4, 97, 0), App.Vector(0, 0, 1), 61.9), math.radians(-177.26), math.radians(-169.19)),
    Part.ArcOfCircle(Part.Circle(App.Vector(104.3, 84.7, 0), App.Vector(0, 0, 1), 3.3), math.radians(-95), math.radians(11)),
    Part.LineSegment(App.Vector(104.1, 81.4, 0), App.Vector(29.8, 87.5, 0)),
    Part.ArcOfCircle(Part.Circle(App.Vector(30.1, 90.8, 0), App.Vector(0, 0, 1), 3.3), math.radians(133), math.radians(265)),
    Part.ArcOfCircle(Part.Circle(App.Vector(-3.4, 127, 0), App.Vector(0, 0, 1), 46), math.radians(-47.27), math.radians(-36.5)),
    Part.ArcOfCircle(Part.Circle(App.Vector(36.2, 97.7, 0), App.Vector(0, 0, 1), 3.3), math.radians(87), math.radians(144)),
], False)
sketch6.addConstraint([
    Sketcher.Constraint("Tangent", 0, 2, 1, 2),
    Sketcher.Constraint("Tangent", 1, 1, 2, 1),
    Sketcher.Constraint("Tangent", 2, 2, 3, 2),
    Sketcher.Constraint("Tangent", 3, 1, 4, 1),
    Sketcher.Constraint("Tangent", 4, 2, 5, 2),
    Sketcher.Constraint("Tangent", 5, 1, 6, 1),
    Sketcher.Constraint("Tangent", 6, 2, 7, 2),
    Sketcher.Constraint("Tangent", 7, 1, 0, 1),
    Sketcher.Constraint("Equal", 1, 3),
    Sketcher.Constraint("Equal", 3, 5),
    Sketcher.Constraint("Equal", 5, 7),
    Sketcher.Constraint("Radius", 1, Q("0.13 in")),
    Sketcher.Constraint("Radius", 6, Q("1.81 in")),
    Sketcher.Constraint("DistanceY", -1, 1, 6, 3, Q("5 in")),
    Sketcher.Constraint("Radius", 2, Q("2.4375 in")),
    Sketcher.Constraint("DistanceX", 6, 3, 1, 3, Q("4.1981002 in")),
    Sketcher.Constraint("DistanceX", 6, 3, -1, 1, 3.367898),
    Sketcher.Constraint("DistanceY", -1, 1, 0, 2, 97.126402),
    Sketcher.Constraint("DistanceX", 0, 2, 2, 3, 64.949898),
    Sketcher.Constraint("DistanceY", 3, 3, 1, 1, 9.273101),
    Sketcher.Constraint("DistanceY", 4, 2, 5, 1, 5.716299),
    Sketcher.Constraint("DistanceY", 5, 3, 7, 1, 10.1798),
])
pocket5 = body.newObject("PartDesign::Pocket", "Pocket004")
pocket5.Profile = sketch6
pocket5.Type = "UpToFirst"
pocket5.Reversed = True

sketch7 = body.newObject("Sketcher::SketchObject", "Sketch006")
sketch7.AttachmentSupport = (doc.getObject("XZ_Plane"), [""])
sketch7.MapMode = "FlatFace"
sketch7.AttachmentOffset = App.Placement(App.Vector(0, 0, -0.2 * 25.4), App.Rotation())
sketch7.addGeometry([
    Part.ArcOfCircle(Part.Circle(App.Vector(106, 116, 0), App.Vector(0, 0, 1), 3.3), math.radians(-93), math.radians(-17)),
    Part.LineSegment(App.Vector(105.9, 112.7, 0), App.Vector(45, 115.3, 0)),
    Part.ArcOfCircle(Part.Circle(App.Vector(45.2, 118.6, 0), App.Vector(0, 0, 1), 3.3), math.radians(170), math.radians(267)),
    Part.ArcOfCircle(Part.Circle(App.Vector(-3.4, 127, 0), App.Vector(0, 0, 1), 46), math.radians(-9.77), math.radians(9.12)),
    Part.ArcOfCircle(Part.Circle(App.Vector(-3.4, 127, 0), App.Vector(0, 0, 1), 46), math.radians(9.12), math.radians(24.53)),
    Part.ArcOfCircle(Part.Circle(App.Vector(41.5, 147.5, 0), App.Vector(0, 0, 1), 3.3), math.radians(88), math.radians(205)),
    Part.LineSegment(App.Vector(41.6, 150.8, 0), App.Vector(123.5, 147.4, 0)),
    Part.ArcOfCircle(Part.Circle(App.Vector(123.4, 144.1, 0), App.Vector(0, 0, 1), 3.3), math.radians(-46), math.radians(88)),
    Part.ArcOfCircle(Part.Circle(App.Vector(168.4, 97, 0), App.Vector(0, 0, 1), 61.9), math.radians(134), math.radians(163)),
], False)
sketch7.addConstraint([
    Sketcher.Constraint("Tangent", 0, 1, 1, 1),
    Sketcher.Constraint("Tangent", 1, 2, 2, 2),
    Sketcher.Constraint("Tangent", 2, 1, 3, 1),
    Sketcher.Constraint("Tangent", 3, 2, 4, 1),
    Sketcher.Constraint("Tangent", 4, 2, 5, 2),
    Sketcher.Constraint("Tangent", 5, 1, 6, 1),
    Sketcher.Constraint("Tangent", 6, 2, 7, 2),
    Sketcher.Constraint("Tangent", 7, 1, 8, 1),
    Sketcher.Constraint("Tangent", 8, 2, 0, 2),
    Sketcher.Constraint("Equal", 0, 2),
    Sketcher.Constraint("Equal", 3, 4),
    Sketcher.Constraint("Equal", 2, 5),
    Sketcher.Constraint("Equal", 5, 7),
    Sketcher.Constraint("Radius", 0, Q("0.13 in")),
    Sketcher.Constraint("Radius", 3, Q("1.81 in")),
    Sketcher.Constraint("DistanceY", -1, 1, 3, 3, Q("5 in")),
    Sketcher.Constraint("Radius", 8, Q("2.4375 in")),
    Sketcher.Constraint("DistanceX", 3, 3, -1, 1, 3.367898),
    Sketcher.Constraint("DistanceX", 0, 3, 7, 3, 17.3328),
    Sketcher.Constraint("DistanceY", 0, 1, 0, 3, 3.2988),
    Sketcher.Constraint("DistanceY", 3, 2, 5, 3, 13.171402),
    Sketcher.Constraint("DistanceY", 8, 3, 6, 2, 50.450898),
    Sketcher.Constraint("DistanceY", -1, 1, 0, 3, 115.954412),
    Sketcher.Constraint("DistanceX", -1, 1, 5, 3, 41.459451),
    Sketcher.Constraint("DistanceX", -1, 1, 7, 1, 125.63304),
])
pocket6 = body.newObject("PartDesign::Pocket", "Pocket005")
pocket6.Profile = sketch7
pocket6.Type = "UpToFirst"
pocket6.Reversed = True
doc.recompute()

fillet = body.newObject("PartDesign::Fillet", "Fillet")
fillet.Base = (pocket6, edges_at(pocket6, [
    (230.316, 2.54, 96.951),
    (168.404, 2.54, 35.039),
    (-1.715, 2.54, 81.056),
    (47.164, 2.54, 28.787),
    (65.147, 2.54, 22.946),
    (251.129, 2.54, 13.883),
]))
fillet.Radius = Q("0.26 in")

doc.recompute()
